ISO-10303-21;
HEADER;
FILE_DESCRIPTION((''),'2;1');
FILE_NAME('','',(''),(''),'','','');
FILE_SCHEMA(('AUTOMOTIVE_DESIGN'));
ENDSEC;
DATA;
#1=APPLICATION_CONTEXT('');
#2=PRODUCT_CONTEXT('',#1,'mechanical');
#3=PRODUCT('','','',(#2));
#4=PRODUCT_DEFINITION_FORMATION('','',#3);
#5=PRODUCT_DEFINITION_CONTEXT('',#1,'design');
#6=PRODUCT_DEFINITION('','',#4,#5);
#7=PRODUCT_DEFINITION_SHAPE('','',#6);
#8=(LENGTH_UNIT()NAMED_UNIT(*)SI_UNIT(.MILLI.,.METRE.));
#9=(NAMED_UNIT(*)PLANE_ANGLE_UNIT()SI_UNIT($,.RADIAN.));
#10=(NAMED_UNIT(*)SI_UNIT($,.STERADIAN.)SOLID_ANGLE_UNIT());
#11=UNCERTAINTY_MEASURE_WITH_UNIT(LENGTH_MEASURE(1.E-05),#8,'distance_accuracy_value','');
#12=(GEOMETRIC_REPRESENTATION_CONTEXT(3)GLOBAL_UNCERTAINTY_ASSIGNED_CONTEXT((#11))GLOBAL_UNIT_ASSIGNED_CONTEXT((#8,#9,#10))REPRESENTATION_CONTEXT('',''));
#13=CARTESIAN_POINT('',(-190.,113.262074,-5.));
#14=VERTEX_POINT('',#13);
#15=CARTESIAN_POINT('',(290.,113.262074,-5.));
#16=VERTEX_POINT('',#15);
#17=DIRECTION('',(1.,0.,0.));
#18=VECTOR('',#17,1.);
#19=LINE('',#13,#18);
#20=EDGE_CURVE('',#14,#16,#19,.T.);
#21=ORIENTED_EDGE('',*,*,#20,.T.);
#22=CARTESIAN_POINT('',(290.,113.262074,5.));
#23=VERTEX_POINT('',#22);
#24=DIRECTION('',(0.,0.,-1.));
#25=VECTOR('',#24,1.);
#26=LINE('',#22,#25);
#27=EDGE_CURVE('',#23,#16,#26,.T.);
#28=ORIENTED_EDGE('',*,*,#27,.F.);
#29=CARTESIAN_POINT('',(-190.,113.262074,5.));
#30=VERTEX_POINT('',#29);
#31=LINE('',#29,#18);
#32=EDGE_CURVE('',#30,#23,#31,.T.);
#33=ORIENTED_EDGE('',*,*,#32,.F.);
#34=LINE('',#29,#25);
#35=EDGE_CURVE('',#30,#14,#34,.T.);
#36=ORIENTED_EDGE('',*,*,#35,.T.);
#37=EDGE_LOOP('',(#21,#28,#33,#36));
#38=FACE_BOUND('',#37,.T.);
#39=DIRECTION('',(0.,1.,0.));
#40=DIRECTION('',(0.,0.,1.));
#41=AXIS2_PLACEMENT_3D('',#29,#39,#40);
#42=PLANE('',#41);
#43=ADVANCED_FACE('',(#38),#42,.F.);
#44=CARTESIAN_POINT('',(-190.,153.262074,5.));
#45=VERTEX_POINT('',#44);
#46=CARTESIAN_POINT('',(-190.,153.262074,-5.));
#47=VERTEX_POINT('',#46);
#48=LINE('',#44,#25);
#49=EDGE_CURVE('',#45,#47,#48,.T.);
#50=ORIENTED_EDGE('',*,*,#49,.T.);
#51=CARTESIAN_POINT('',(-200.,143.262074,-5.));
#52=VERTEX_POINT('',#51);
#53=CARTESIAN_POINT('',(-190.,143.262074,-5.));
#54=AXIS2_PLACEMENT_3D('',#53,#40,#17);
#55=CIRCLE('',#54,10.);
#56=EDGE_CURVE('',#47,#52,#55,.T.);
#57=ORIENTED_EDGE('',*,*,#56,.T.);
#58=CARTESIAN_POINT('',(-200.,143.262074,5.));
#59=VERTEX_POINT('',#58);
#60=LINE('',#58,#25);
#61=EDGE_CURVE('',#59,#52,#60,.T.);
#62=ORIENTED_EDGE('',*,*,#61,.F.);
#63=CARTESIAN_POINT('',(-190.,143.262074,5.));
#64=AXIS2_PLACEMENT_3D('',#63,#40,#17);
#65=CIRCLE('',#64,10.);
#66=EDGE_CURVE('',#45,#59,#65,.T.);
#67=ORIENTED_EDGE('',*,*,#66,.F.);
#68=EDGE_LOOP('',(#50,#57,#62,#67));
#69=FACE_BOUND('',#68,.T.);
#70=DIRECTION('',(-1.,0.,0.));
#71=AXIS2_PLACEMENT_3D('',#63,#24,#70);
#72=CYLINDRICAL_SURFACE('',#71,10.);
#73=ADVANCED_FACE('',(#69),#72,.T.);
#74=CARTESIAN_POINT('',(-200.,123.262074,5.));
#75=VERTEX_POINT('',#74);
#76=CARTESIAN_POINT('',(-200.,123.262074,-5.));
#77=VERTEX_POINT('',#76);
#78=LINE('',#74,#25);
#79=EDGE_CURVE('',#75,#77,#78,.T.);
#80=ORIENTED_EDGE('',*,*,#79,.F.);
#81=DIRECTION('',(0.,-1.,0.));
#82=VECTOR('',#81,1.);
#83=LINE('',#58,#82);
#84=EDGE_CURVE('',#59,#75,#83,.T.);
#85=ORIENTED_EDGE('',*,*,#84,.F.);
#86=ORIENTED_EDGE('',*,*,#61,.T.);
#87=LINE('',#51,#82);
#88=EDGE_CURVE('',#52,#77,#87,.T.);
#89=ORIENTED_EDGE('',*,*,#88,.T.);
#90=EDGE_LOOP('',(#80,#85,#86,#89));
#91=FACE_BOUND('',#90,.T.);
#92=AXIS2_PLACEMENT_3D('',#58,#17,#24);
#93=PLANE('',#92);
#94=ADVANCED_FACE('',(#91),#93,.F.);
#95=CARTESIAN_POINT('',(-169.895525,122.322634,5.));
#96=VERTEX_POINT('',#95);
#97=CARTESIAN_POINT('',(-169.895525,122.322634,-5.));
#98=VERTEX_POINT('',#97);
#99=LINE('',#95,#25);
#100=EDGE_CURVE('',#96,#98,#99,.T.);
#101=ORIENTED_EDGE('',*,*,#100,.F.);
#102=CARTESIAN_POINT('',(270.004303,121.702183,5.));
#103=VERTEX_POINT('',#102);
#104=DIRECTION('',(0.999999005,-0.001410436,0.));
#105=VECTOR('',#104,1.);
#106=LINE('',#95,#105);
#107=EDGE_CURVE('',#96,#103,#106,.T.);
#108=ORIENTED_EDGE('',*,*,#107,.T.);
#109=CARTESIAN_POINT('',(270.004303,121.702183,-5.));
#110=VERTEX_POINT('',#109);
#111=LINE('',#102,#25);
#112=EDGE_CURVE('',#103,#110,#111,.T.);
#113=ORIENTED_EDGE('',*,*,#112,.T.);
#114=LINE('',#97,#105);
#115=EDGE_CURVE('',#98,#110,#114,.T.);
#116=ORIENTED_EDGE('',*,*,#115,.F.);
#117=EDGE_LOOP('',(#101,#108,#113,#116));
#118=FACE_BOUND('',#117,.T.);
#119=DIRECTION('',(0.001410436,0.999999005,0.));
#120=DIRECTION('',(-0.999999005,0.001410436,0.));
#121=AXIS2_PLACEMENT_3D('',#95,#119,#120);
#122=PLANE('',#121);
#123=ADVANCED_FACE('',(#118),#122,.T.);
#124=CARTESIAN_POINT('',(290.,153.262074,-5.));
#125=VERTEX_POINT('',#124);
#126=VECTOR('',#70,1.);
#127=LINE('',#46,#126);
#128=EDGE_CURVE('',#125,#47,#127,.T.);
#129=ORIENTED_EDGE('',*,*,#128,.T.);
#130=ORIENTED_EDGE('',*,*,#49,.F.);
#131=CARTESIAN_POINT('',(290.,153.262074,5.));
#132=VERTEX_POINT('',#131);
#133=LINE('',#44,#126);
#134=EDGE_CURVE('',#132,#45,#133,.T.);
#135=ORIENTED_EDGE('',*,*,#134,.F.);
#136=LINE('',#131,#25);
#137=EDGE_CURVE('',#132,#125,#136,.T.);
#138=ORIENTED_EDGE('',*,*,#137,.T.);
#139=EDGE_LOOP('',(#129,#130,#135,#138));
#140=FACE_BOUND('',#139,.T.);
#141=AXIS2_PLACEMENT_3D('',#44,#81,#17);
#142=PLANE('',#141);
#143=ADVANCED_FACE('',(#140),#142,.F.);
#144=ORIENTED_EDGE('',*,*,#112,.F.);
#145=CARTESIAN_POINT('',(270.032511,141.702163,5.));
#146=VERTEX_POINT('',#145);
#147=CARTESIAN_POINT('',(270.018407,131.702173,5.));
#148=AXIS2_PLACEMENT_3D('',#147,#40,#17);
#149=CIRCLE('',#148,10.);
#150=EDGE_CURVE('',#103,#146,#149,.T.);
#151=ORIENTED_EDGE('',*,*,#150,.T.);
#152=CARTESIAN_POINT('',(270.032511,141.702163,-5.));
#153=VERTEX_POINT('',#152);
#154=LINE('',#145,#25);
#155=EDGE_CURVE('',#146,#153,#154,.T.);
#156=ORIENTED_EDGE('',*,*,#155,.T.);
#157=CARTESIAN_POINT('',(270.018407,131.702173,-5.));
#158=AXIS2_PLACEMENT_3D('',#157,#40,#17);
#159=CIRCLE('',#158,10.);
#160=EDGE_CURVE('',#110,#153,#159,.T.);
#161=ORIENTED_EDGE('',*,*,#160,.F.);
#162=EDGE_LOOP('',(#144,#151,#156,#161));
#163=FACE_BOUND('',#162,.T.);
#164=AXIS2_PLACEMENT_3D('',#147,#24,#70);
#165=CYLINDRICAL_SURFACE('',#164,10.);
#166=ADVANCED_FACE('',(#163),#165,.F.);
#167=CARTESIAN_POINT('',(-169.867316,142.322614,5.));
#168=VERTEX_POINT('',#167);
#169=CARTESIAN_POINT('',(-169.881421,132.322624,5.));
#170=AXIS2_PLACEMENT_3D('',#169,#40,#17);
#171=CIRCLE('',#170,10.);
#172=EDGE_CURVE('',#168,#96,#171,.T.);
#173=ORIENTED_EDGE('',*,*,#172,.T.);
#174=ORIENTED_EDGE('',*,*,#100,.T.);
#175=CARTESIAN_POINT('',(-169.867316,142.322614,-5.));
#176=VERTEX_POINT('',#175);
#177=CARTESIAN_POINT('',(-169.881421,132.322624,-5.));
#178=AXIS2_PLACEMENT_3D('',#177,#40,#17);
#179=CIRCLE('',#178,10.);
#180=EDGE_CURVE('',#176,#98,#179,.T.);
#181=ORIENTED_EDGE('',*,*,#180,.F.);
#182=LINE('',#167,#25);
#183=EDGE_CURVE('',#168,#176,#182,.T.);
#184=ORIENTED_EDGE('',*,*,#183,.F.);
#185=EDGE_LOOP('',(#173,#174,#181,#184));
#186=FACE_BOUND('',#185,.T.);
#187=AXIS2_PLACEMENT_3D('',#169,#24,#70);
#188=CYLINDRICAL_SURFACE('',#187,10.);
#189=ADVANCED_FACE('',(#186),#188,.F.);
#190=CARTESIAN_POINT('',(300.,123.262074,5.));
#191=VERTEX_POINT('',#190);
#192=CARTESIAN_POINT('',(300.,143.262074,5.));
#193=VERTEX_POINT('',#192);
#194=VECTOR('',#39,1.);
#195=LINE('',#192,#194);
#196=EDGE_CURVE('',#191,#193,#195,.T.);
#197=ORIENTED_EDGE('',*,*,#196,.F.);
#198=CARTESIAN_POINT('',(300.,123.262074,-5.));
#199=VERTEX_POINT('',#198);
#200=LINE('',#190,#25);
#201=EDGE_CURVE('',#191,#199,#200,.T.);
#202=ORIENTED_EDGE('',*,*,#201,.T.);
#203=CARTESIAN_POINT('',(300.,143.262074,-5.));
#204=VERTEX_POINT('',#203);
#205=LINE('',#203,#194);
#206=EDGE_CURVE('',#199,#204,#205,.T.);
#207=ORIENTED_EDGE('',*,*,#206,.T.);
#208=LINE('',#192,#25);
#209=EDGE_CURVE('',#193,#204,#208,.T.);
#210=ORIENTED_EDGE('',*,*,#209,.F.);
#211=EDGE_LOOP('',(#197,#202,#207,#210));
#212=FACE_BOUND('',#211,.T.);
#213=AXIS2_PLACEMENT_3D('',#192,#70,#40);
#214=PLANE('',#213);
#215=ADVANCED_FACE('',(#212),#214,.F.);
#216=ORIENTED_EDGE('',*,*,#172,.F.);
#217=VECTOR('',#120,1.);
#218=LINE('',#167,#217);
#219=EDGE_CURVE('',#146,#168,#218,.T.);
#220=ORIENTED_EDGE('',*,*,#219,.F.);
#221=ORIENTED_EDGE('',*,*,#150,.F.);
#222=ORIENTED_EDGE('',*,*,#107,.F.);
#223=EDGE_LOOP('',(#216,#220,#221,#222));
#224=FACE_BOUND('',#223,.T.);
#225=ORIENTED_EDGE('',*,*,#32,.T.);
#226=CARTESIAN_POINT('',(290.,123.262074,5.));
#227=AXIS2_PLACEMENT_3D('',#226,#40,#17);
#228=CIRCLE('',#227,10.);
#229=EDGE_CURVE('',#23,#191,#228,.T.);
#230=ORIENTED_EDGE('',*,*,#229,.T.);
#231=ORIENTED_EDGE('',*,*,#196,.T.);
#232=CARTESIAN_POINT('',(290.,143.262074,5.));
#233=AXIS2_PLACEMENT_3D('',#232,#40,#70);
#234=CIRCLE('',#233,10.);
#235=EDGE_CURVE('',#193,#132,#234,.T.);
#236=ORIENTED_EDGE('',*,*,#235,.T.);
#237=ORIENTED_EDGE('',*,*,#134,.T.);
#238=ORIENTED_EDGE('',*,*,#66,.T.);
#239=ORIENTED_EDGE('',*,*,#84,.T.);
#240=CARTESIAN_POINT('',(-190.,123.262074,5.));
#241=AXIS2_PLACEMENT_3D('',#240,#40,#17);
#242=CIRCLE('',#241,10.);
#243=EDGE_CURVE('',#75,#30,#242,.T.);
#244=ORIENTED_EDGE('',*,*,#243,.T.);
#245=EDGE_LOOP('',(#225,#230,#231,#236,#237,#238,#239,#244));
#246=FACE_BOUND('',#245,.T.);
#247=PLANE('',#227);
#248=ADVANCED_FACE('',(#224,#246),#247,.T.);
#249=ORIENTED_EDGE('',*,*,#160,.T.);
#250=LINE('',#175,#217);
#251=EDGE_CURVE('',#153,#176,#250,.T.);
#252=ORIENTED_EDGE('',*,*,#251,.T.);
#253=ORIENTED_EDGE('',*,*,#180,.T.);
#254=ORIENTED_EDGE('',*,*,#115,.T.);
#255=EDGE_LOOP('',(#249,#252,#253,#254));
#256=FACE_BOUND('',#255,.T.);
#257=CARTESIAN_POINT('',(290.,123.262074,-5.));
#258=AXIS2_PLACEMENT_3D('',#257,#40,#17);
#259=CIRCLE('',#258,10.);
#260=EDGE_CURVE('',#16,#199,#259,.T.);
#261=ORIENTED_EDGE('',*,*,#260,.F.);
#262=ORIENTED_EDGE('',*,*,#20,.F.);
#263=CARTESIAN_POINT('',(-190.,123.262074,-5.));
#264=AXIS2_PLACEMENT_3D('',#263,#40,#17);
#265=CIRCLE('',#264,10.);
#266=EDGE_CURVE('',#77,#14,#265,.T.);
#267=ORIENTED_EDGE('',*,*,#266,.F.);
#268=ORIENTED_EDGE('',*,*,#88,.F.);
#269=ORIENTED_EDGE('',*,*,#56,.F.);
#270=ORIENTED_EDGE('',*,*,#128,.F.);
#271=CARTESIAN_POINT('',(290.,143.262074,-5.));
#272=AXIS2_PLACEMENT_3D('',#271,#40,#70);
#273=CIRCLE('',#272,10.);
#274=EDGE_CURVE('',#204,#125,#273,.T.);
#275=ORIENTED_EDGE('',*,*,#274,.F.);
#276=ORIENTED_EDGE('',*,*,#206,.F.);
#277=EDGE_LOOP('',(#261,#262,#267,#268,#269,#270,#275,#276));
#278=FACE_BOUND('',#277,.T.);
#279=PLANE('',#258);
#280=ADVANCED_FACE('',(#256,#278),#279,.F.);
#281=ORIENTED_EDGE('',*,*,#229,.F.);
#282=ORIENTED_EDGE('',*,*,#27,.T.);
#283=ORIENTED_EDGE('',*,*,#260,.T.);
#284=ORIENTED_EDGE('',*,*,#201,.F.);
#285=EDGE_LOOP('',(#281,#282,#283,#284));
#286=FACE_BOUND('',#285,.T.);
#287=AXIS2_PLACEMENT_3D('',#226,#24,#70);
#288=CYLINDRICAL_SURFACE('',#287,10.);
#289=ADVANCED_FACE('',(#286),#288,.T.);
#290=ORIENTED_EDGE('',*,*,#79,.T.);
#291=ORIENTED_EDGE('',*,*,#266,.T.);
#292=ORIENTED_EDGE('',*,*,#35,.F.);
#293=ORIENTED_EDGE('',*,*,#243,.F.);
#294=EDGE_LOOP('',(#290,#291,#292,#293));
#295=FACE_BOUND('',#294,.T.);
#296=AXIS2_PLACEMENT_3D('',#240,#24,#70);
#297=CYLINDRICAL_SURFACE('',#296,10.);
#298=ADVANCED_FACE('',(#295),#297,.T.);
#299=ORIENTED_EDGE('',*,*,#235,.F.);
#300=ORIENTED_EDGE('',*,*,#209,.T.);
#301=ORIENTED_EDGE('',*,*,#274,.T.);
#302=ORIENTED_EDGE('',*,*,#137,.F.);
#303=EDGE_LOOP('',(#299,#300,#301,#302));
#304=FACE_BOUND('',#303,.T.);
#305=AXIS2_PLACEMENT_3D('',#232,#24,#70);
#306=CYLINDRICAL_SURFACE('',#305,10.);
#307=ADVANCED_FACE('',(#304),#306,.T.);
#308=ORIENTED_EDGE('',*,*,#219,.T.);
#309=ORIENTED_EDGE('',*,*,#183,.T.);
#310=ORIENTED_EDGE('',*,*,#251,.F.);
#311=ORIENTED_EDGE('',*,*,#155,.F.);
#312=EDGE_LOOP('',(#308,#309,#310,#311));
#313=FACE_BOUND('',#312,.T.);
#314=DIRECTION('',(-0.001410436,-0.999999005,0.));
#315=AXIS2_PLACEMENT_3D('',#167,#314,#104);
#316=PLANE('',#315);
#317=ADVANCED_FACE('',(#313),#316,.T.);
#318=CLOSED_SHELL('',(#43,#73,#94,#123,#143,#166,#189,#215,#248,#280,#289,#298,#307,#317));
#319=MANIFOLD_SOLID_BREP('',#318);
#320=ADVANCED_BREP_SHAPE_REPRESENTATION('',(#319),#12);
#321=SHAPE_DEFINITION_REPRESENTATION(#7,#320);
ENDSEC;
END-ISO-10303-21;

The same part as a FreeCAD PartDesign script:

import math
import FreeCAD as App
import Part
import Sketcher
from FreeCAD import Vector

doc = App.newDocument("Part")
body = doc.addObject("PartDesign::Body", "Body")

sketch1 = body.newObject("Sketcher::SketchObject", "Sketch")
sketch1.AttachmentSupport = (doc.getObject("XY_Plane"), [""])
sketch1.MapMode = "FlatFace"
sketch1.addGeometry([
    Part.LineSegment(Vector(290, 153, 0), Vector(-190, 153, 0)),
    Part.ArcOfCircle(Part.Circle(Vector(-190, 143, 0), Vector(0, 0, 1), 10), math.radians(90), math.radians(180)),
    Part.LineSegment(Vector(-200, 143, 0), Vector(-200, 123, 0)),
    Part.ArcOfCircle(Part.Circle(Vector(-190, 123, 0), Vector(0, 0, 1), 10), math.radians(180), math.radians(270)),
    Part.LineSegment(Vector(-190, 113, 0), Vector(290, 113, 0)),
    Part.ArcOfCircle(Part.Circle(Vector(290, 123, 0), Vector(0, 0, 1), 10), math.radians(-90), math.radians(0)),
    Part.LineSegment(Vector(300, 123, 0), Vector(300, 143, 0)),
    Part.ArcOfCircle(Part.Circle(Vector(290, 143, 0), Vector(0, 0, 1), 10), math.radians(0), math.radians(90)),
    Part.LineSegment(Vector(-170, 142, 0), Vector(270, 142, 0)),
    Part.ArcOfCircle(Part.Circle(Vector(270, 132, 0), Vector(0, 0, 1), 10), math.radians(-90), math.radians(90)),
    Part.LineSegment(Vector(270, 122, 0), Vector(-170, 122, 0)),
    Part.ArcOfCircle(Part.Circle(Vector(-170, 132, 0), Vector(0, 0, 1), 10), math.radians(90), math.radians(270)),
], False)
sketch1.addConstraint([
    Sketcher.Constraint("Tangent", 0, 2, 1, 1),
    Sketcher.Constraint("Tangent", 1, 2, 2, 1),
    Sketcher.Constraint("Tangent", 2, 2, 3, 1),
    Sketcher.Constraint("Tangent", 3, 2, 4, 1),
    Sketcher.Constraint("Tangent", 4, 2, 5, 1),
    Sketcher.Constraint("Tangent", 5, 2, 6, 1),
    Sketcher.Constraint("Tangent", 6, 2, 7, 1),
    Sketcher.Constraint("Tangent", 7, 2, 0, 1),
    Sketcher.Constraint("Tangent", 8, 2, 9, 2),
    Sketcher.Constraint("Tangent", 9, 1, 10, 1),
    Sketcher.Constraint("Tangent", 10, 2, 11, 2),
    Sketcher.Constraint("Tangent", 11, 1, 8, 1),
    Sketcher.Constraint("Horizontal", 0),
    Sketcher.Constraint("Vertical", 2),
    Sketcher.Constraint("Horizontal", 4),
    Sketcher.Constraint("Vertical", 6),
    Sketcher.Constraint("Equal", 1, 3),
    Sketcher.Constraint("Equal", 3, 5),
    Sketcher.Constraint("Equal", 5, 7),
    Sketcher.Constraint("Equal", 7, 9),
    Sketcher.Constraint("Equal", 9, 11),
    Sketcher.Constraint("Radius", 1, 10.0),
    Sketcher.Constraint("DistanceX", 0, 2, 0, 1, 480.0),
    Sketcher.Constraint("DistanceY", 2, 2, 2, 1, 20.0),
    Sketcher.Constraint("DistanceX", 1, 3, -1, 1, 190.0),
    Sketcher.Constraint("DistanceY", 5, 3, 9, 3, 8.440098),
    Sketcher.Constraint("DistanceX", 11, 3, -1, 1, 169.881421),
    Sketcher.Constraint("DistanceX", -1, 1, 8, 2, 270.032511),
    Sketcher.Constraint("DistanceY", 3, 3, 11, 3, 9.06055),
    Sketcher.Constraint("DistanceY", -1, 1, 1, 3, 143.262074),
])
pad1 = body.newObject("PartDesign::Pad", "Pad")
pad1.Profile = sketch1
pad1.Length = 10
pad1.Midplane = True

doc.recompute()
